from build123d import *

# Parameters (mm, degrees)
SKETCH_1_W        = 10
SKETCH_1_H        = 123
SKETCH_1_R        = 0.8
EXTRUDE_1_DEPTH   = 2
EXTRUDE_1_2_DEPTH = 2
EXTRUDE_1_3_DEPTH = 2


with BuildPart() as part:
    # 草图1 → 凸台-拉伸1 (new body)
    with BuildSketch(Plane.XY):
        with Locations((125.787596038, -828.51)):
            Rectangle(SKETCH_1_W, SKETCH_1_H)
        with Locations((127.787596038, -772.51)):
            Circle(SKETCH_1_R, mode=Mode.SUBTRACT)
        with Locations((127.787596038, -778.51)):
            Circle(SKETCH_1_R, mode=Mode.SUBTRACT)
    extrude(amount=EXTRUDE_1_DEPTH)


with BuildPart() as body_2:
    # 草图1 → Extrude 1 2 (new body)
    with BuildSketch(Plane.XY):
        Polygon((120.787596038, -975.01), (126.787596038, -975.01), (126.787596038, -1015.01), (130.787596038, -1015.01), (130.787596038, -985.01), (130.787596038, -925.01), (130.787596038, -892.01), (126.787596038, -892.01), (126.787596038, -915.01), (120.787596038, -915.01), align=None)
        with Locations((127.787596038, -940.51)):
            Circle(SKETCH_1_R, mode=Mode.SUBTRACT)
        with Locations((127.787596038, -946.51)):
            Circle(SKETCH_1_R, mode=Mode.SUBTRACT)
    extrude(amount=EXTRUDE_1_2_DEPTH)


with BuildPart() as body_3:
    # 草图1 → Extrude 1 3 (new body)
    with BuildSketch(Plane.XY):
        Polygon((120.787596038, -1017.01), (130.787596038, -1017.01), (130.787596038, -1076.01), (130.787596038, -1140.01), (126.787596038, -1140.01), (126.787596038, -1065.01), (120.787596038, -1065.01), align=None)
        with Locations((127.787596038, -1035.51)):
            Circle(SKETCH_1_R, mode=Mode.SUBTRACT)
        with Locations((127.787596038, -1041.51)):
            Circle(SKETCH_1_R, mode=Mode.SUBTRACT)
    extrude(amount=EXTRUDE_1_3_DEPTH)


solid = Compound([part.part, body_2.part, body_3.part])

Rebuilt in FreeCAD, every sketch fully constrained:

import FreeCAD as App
import Part
import Sketcher

V = App.Vector
Q = App.Units.Quantity

doc = App.newDocument("Part")
body = doc.addObject("PartDesign::Body", "Body")

# Sketch on XY plane
sketch1 = doc.addObject("Sketcher::SketchObject", "Sketch")
body.addObject(sketch1)
sketch1.AttachmentSupport = (doc.XY_Plane, [""])
sketch1.MapMode = "FlatFace"
sketch1.addGeometry(Part.LineSegment(V(120.8, -767, 0), V(120.8, -890, 0)), False)
sketch1.addGeometry(Part.LineSegment(V(120.8, -890, 0), V(130.8, -890, 0)), False)
sketch1.addGeometry(Part.LineSegment(V(130.8, -890, 0), V(130.8, -767, 0)), False)
sketch1.addGeometry(Part.LineSegment(V(130.8, -767, 0), V(120.8, -767, 0)), False)
sketch1.addGeometry(Part.Circle(V(127.8, -778.5, 0), V(0, 0, 1), 0.8), False)
sketch1.addGeometry(Part.Circle(V(127.8, -772.5, 0), V(0, 0, 1), 0.8), False)
sketch1.addConstraint(Sketcher.Constraint("Coincident", 0, 2, 1, 1))
sketch1.addConstraint(Sketcher.Constraint("Coincident", 1, 2, 2, 1))
sketch1.addConstraint(Sketcher.Constraint("Coincident", 2, 2, 3, 1))
sketch1.addConstraint(Sketcher.Constraint("Coincident", 3, 2, 0, 1))
sketch1.addConstraint(Sketcher.Constraint("Vertical", 0))
sketch1.addConstraint(Sketcher.Constraint("Horizontal", 1))
sketch1.addConstraint(Sketcher.Constraint("Vertical", 2))
sketch1.addConstraint(Sketcher.Constraint("Horizontal", 3))
sketch1.addConstraint(Sketcher.Constraint("Equal", 4, 5))
sketch1.addConstraint(Sketcher.Constraint("Vertical", 4, 3, 5, 3))
sketch1.addConstraint(Sketcher.Constraint("Diameter", 4, Q("1.6 mm")))
sketch1.addConstraint(Sketcher.Constraint("DistanceX", 1, 1, 1, 2, Q("10 mm")))
sketch1.addConstraint(Sketcher.Constraint("DistanceY", 0, 2, 0, 1, Q("123 mm")))
sketch1.addConstraint(Sketcher.Constraint("DistanceY", 4, 3, 5, 3, Q("6 mm")))
sketch1.addConstraint(Sketcher.Constraint("DistanceX", 0, 2, 4, 3, Q("7 mm")))
sketch1.addConstraint(Sketcher.Constraint("DistanceY", 0, 2, 4, 3, Q("111.5 mm")))
sketch1.addConstraint(Sketcher.Constraint("DistanceY", 4, 3, -1, 1, Q("778.51 mm")))
sketch1.addConstraint(Sketcher.Constraint("DistanceX", -1, 1, 4, 3, Q("127.787596 mm")))
pad1 = doc.addObject("PartDesign::Pad", "Pad")
body.addObject(pad1)
pad1.Profile = sketch1
pad1.Length = 2
body2 = doc.addObject("PartDesign::Body", "Body001")

# Sketch on XY plane
sketch2 = doc.addObject("Sketcher::SketchObject", "Sketch001")
body2.addObject(sketch2)
sketch2.AttachmentSupport = (doc.getObject("XY_Plane001"), [""])
sketch2.MapMode = "FlatFace"
sketch2.addGeometry(Part.LineSegment(V(120.8, -975, 0), V(126.8, -975, 0)), False)
sketch2.addGeometry(Part.LineSegment(V(126.8, -975, 0), V(126.8, -1015, 0)), False)
sketch2.addGeometry(Part.LineSegment(V(126.8, -1015, 0), V(130.8, -1015, 0)), False)
sketch2.addGeometry(Part.LineSegment(V(130.8, -1015, 0), V(130.8, -892, 0)), False)
sketch2.addGeometry(Part.LineSegment(V(130.8, -892, 0), V(126.8, -892, 0)), False)
sketch2.addGeometry(Part.LineSegment(V(126.8, -892, 0), V(126.8, -915, 0)), False)
sketch2.addGeometry(Part.LineSegment(V(126.8, -915, 0), V(120.8, -915, 0)), False)
sketch2.addGeometry(Part.LineSegment(V(120.8, -915, 0), V(120.8, -975, 0)), False)
sketch2.addGeometry(Part.Circle(V(127.8, -946.5, 0), V(0, 0, 1), 0.8), False)
sketch2.addGeometry(Part.Circle(V(127.8, -940.5, 0), V(0, 0, 1), 0.8), False)
sketch2.addConstraint(Sketcher.Constraint("Coincident", 0, 2, 1, 1))
sketch2.addConstraint(Sketcher.Constraint("Coincident", 1, 2, 2, 1))
sketch2.addConstraint(Sketcher.Constraint("Coincident", 2, 2, 3, 1))
sketch2.addConstraint(Sketcher.Constraint("Coincident", 3, 2, 4, 1))
sketch2.addConstraint(Sketcher.Constraint("Coincident", 4, 2, 5, 1))
sketch2.addConstraint(Sketcher.Constraint("Coincident", 5, 2, 6, 1))
sketch2.addConstraint(Sketcher.Constraint("Coincident", 6, 2, 7, 1))
sketch2.addConstraint(Sketcher.Constraint("Coincident", 7, 2, 0, 1))
sketch2.addConstraint(Sketcher.Constraint("Horizontal", 0))
sketch2.addConstraint(Sketcher.Constraint("Vertical", 1))
sketch2.addConstraint(Sketcher.Constraint("Horizontal", 2))
sketch2.addConstraint(Sketcher.Constraint("Vertical", 3))
sketch2.addConstraint(Sketcher.Constraint("Horizontal", 4))
sketch2.addConstraint(Sketcher.Constraint("Vertical", 5))
sketch2.addConstraint(Sketcher.Constraint("Horizontal", 6))
sketch2.addConstraint(Sketcher.Constraint("Vertical", 7))
sketch2.addConstraint(Sketcher.Constraint("Equal", 8, 9))
sketch2.addConstraint(Sketcher.Constraint("Vertical", 8, 3, 9, 3))
sketch2.addConstraint(Sketcher.Constraint("Vertical", 1, 2, 4, 2))
sketch2.addConstraint(Sketcher.Constraint("Diameter", 8, Q("1.6 mm")))
sketch2.addConstraint(Sketcher.Constraint("DistanceX", 0, 1, 0, 2, Q("6 mm")))
sketch2.addConstraint(Sketcher.Constraint("DistanceX", 2, 1, 2, 2, Q("4 mm")))
sketch2.addConstraint(Sketcher.Constraint("DistanceY", 1, 2, 1, 1, Q("40 mm")))
sketch2.addConstraint(Sketcher.Constraint("DistanceY", 3, 1, 3, 2, Q("123 mm")))
sketch2.addConstraint(Sketcher.Constraint("DistanceY", 5, 2, 5, 1, Q("23 mm")))
sketch2.addConstraint(Sketcher.Constraint("DistanceY", 8, 3, 9, 3, Q("6 mm")))
sketch2.addConstraint(Sketcher.Constraint("DistanceX", 0, 2, 8, 3, Q("1 mm")))
sketch2.addConstraint(Sketcher.Constraint("DistanceY", 0, 2, 8, 3, Q("28.5 mm")))
sketch2.addConstraint(Sketcher.Constraint("DistanceY", 8, 3, -1, 1, Q("946.51 mm")))
sketch2.addConstraint(Sketcher.Constraint("DistanceX", -1, 1, 8, 3, Q("127.787596 mm")))
pad2 = doc.addObject("PartDesign::Pad", "Pad001")
body2.addObject(pad2)
pad2.Profile = sketch2
pad2.Length = 2
body3 = doc.addObject("PartDesign::Body", "Body002")

# Sketch on XY plane
sketch3 = doc.addObject("Sketcher::SketchObject", "Sketch002")
body3.addObject(sketch3)
sketch3.AttachmentSupport = (doc.getObject("XY_Plane002"), [""])
sketch3.MapMode = "FlatFace"
sketch3.addGeometry(Part.LineSegment(V(130.8, -1017, 0), V(120.8, -1017, 0)), False)
sketch3.addGeometry(Part.LineSegment(V(120.8, -1017, 0), V(120.8, -1065, 0)), False)
sketch3.addGeometry(Part.LineSegment(V(120.8, -1065, 0), V(126.8, -1065, 0)), False)
sketch3.addGeometry(Part.LineSegment(V(126.8, -1065, 0), V(126.8, -1140, 0)), False)
sketch3.addGeometry(Part.LineSegment(V(126.8, -1140, 0), V(130.8, -1140, 0)), False)
sketch3.addGeometry(Part.LineSegment(V(130.8, -1140, 0), V(130.8, -1017, 0)), False)
sketch3.addGeometry(Part.Circle(V(127.8, -1041.5, 0), V(0, 0, 1), 0.8), False)
sketch3.addGeometry(Part.Circle(V(127.8, -1035.5, 0), V(0, 0, 1), 0.8), False)
sketch3.addConstraint(Sketcher.Constraint("Coincident", 0, 2, 1, 1))
sketch3.addConstraint(Sketcher.Constraint("Coincident", 1, 2, 2, 1))
sketch3.addConstraint(Sketcher.Constraint("Coincident", 2, 2, 3, 1))
sketch3.addConstraint(Sketcher.Constraint("Coincident", 3, 2, 4, 1))
sketch3.addConstraint(Sketcher.Constraint("Coincident", 4, 2, 5, 1))
sketch3.addConstraint(Sketcher.Constraint("Coincident", 5, 2, 0, 1))
sketch3.addConstraint(Sketcher.Constraint("Horizontal", 0))
sketch3.addConstraint(Sketcher.Constraint("Vertical", 1))
sketch3.addConstraint(Sketcher.Constraint("Horizontal", 2))
sketch3.addConstraint(Sketcher.Constraint("Vertical", 3))
sketch3.addConstraint(Sketcher.Constraint("Horizontal", 4))
sketch3.addConstraint(Sketcher.Constraint("Vertical", 5))
sketch3.addConstraint(Sketcher.Constraint("Equal", 6, 7))
sketch3.addConstraint(Sketcher.Constraint("Vertical", 6, 3, 7, 3))
sketch3.addConstraint(Sketcher.Constraint("Diameter", 6, Q("1.6 mm")))
sketch3.addConstraint(Sketcher.Constraint("DistanceX", 0, 2, 0, 1, Q("10 mm")))
sketch3.addConstraint(Sketcher.Constraint("DistanceX", 2, 1, 2, 2, Q("6 mm")))
sketch3.addConstraint(Sketcher.Constraint("DistanceY", 1, 2, 1, 1, Q("48 mm")))
sketch3.addConstraint(Sketcher.Constraint("DistanceY", 3, 2, 3, 1, Q("75 mm")))
sketch3.addConstraint(Sketcher.Constraint("DistanceY", 6, 3, 7, 3, Q("6 mm")))
sketch3.addConstraint(Sketcher.Constraint("DistanceX", 0, 2, 7, 3, Q("7 mm")))
sketch3.addConstraint(Sketcher.Constraint("DistanceY", 7, 3, 0, 2, Q("18.5 mm")))
sketch3.addConstraint(Sketcher.Constraint("DistanceY", 6, 3, -1, 1, Q("1041.51 mm")))
sketch3.addConstraint(Sketcher.Constraint("DistanceX", -1, 1, 6, 3, Q("127.787596 mm")))
pad3 = doc.addObject("PartDesign::Pad", "Pad002")
body3.addObject(pad3)
pad3.Profile = sketch3
pad3.Length = 2

doc.recompute()
